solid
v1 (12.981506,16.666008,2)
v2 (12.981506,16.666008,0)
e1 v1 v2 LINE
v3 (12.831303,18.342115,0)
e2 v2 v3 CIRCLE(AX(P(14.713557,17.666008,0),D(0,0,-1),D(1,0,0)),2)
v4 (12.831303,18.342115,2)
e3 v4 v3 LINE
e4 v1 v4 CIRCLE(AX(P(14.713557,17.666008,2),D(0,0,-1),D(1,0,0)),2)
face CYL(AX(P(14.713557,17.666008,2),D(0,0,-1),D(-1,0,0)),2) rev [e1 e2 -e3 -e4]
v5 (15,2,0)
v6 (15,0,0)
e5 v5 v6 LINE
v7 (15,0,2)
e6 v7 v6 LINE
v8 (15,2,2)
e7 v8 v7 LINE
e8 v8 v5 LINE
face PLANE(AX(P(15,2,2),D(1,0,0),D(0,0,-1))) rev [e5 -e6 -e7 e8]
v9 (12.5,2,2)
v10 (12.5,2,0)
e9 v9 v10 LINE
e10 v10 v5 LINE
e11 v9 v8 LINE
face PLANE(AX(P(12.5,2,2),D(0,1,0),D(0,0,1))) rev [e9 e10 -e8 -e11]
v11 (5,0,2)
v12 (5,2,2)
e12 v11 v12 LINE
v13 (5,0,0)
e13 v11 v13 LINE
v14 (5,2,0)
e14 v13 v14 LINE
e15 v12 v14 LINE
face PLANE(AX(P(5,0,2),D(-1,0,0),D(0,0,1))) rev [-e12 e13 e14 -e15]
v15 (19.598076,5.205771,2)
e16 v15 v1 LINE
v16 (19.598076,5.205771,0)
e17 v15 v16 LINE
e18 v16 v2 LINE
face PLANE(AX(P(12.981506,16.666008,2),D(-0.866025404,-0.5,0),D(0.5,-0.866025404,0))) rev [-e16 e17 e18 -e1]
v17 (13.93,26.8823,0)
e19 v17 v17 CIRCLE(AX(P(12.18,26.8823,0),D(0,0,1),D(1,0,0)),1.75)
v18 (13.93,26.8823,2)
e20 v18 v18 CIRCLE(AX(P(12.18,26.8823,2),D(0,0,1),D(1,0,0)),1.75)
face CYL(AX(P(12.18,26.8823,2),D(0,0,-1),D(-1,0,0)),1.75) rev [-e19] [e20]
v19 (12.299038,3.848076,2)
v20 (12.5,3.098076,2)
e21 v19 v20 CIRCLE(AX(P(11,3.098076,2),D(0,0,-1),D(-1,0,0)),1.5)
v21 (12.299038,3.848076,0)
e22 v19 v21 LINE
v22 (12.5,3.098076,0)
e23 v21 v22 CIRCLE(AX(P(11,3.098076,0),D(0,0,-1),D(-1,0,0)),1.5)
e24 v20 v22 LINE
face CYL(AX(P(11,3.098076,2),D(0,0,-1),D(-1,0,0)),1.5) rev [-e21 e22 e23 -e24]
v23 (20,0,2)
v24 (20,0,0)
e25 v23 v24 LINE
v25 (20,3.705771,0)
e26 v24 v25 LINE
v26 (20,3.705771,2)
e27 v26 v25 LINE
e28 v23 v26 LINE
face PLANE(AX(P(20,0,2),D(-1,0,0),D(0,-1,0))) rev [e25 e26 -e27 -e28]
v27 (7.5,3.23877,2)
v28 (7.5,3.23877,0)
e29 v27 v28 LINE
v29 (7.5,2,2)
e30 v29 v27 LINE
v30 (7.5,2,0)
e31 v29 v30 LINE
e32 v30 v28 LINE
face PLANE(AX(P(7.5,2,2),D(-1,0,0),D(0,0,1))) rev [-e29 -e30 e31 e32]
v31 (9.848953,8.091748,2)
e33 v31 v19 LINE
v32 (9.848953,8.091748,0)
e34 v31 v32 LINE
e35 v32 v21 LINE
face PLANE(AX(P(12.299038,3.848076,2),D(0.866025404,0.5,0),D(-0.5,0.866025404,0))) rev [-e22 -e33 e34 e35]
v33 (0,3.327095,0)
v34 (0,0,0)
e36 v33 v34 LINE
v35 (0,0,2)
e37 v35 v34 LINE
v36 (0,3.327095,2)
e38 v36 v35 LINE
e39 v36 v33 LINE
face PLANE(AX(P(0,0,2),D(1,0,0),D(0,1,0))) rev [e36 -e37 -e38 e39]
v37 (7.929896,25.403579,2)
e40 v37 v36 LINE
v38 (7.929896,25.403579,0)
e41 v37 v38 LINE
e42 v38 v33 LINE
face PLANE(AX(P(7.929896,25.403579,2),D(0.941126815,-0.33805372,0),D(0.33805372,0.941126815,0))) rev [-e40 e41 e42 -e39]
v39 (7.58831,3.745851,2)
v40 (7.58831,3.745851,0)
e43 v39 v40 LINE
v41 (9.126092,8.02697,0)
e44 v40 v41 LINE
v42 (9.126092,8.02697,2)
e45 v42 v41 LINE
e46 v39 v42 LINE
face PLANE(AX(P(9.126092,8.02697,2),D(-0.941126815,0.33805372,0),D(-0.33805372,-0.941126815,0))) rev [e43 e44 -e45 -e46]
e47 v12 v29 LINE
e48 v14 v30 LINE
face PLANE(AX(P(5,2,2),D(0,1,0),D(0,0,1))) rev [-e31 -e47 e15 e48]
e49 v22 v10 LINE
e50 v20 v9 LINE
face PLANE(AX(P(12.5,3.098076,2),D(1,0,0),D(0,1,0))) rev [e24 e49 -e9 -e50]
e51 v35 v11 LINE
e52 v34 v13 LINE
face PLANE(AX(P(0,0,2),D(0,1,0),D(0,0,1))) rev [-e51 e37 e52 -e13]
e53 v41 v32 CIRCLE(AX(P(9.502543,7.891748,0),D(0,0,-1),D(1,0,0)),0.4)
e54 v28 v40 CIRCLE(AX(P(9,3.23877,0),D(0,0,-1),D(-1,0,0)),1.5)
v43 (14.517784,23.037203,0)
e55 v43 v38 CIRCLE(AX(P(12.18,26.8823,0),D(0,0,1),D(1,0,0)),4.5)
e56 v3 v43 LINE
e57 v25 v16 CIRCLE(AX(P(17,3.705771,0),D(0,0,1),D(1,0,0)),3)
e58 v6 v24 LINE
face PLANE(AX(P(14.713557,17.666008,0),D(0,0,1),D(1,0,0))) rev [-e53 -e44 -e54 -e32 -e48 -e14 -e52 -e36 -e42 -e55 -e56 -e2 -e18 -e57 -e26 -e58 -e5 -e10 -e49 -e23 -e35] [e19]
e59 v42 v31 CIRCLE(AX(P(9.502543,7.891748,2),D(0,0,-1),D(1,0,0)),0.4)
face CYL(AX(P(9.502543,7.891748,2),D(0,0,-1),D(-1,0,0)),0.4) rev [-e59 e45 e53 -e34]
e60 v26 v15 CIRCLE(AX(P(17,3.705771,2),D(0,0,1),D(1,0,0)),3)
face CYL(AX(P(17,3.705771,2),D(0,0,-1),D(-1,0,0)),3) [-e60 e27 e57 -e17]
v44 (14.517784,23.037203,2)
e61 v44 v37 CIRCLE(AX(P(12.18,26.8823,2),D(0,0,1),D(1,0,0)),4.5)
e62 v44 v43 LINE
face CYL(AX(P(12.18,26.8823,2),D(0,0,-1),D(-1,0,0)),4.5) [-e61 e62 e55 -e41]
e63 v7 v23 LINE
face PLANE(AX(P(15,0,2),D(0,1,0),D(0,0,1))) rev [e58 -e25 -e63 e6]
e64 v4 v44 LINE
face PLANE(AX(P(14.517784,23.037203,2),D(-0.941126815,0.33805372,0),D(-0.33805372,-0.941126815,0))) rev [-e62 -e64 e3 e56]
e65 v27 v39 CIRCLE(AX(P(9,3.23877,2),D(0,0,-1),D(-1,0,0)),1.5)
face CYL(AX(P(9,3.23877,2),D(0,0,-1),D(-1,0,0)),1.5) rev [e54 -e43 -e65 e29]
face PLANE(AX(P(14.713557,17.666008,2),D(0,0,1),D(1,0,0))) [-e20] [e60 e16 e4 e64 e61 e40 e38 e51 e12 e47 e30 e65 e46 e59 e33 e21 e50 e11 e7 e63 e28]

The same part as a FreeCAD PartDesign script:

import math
import FreeCAD as App
import Part
import Sketcher
from FreeCAD import Vector

doc = App.newDocument("Part")
params = doc.addObject("Spreadsheet::Sheet", "Params")
for row, (alias, value) in enumerate([
    ("sketch1_radius", "3 mm"),
    ("sketch1_radius2", "2 mm"),
    ("sketch1_diameter", "3.5 mm"),
    ("sketch1_radius3", "1.5 mm"),
    ("sketch1_radius4", "0.4 mm"),
    ("pad1_length", "2 mm"),
], start=1):
    params.set(f"A{row}", alias)
    params.set(f"B{row}", "=" + value)
    params.setAlias(f"B{row}", alias)

body = doc.addObject("PartDesign::Body", "Body")

# Sketch on XY plane
sketch1 = body.newObject("Sketcher::SketchObject", "Sketch")
sketch1.AttachmentSupport = (doc.getObject("XY_Plane"), [""])
sketch1.MapMode = "FlatFace"
sketch1.addGeometry([
    Part.LineSegment(Vector(0, 3.327095, 0), Vector(0, 0, 0)),  # 0
    Part.LineSegment(Vector(0, 0, 0), Vector(5, 0, 0)),  # 1
    Part.LineSegment(Vector(5, 0, 0), Vector(5, 2, 0)),  # 2
    Part.LineSegment(Vector(5, 2, 0), Vector(7.5, 2, 0)),  # 3
    Part.LineSegment(Vector(7.5, 2, 0), Vector(7.5, 3.23877, 0)),  # 4
    Part.ArcOfCircle(Part.Circle(Vector(9, 3.23877, 0), Vector(0, 0, 1), 1.5), math.radians(160.24166), math.radians(180)),  # 5
    Part.LineSegment(Vector(7.58831, 3.745851, 0), Vector(9.126092, 8.02697, 0)),  # 6
    Part.ArcOfCircle(Part.Circle(Vector(9.502543, 7.891748, 0), Vector(0, 0, 1), 0.4), math.radians(30), math.radians(160.24166)),  # 7
    Part.LineSegment(Vector(9.848953, 8.091748, 0), Vector(12.299038, 3.848076, 0)),  # 8
    Part.ArcOfCircle(Part.Circle(Vector(11, 3.098076, 0), Vector(0, 0, 1), 1.5), math.radians(0), math.radians(30)),  # 9
    Part.LineSegment(Vector(12.5, 3.098076, 0), Vector(12.5, 2, 0)),  # 10
    Part.LineSegment(Vector(12.5, 2, 0), Vector(15, 2, 0)),  # 11
    Part.LineSegment(Vector(15, 2, 0), Vector(15, 0, 0)),  # 12
    Part.LineSegment(Vector(15, 0, 0), Vector(20, 0, 0)),  # 13
    Part.LineSegment(Vector(20, 0, 0), Vector(20, 3.705771, 0)),  # 14
    Part.ArcOfCircle(Part.Circle(Vector(17, 3.705771, 0), Vector(0, 0, 1), 3), math.radians(0), math.radians(30)),  # 15
    Part.LineSegment(Vector(19.598076, 5.205771, 0), Vector(12.981506, 16.666008, 0)),  # 16
    Part.ArcOfCircle(Part.Circle(Vector(14.713557, 17.666008, 0), Vector(0, 0, 1), 2), math.radians(160.24166), math.radians(210)),  # 17
    Part.LineSegment(Vector(12.831303, 18.342115, 0), Vector(14.517784, 23.037203, 0)),  # 18
    Part.ArcOfCircle(Part.Circle(Vector(12.18, 26.8823, 0), Vector(0, 0, 1), 4.5), math.radians(-58.700782), math.radians(199.184101)),  # 19
    Part.LineSegment(Vector(7.929896, 25.403579, 0), Vector(0, 3.327095, 0)),  # 20
    Part.Circle(Vector(12.18, 26.8823, 0), Vector(0, 0, 1), 1.75),  # 21
], False)
sketch1.addConstraint([
    Sketcher.Constraint("Coincident", 0, 2, 1, 1),
    Sketcher.Constraint("Coincident", 1, 2, 2, 1),
    Sketcher.Constraint("Coincident", 2, 2, 3, 1),
    Sketcher.Constraint("Coincident", 3, 2, 4, 1),
    Sketcher.Constraint("Coincident", 4, 2, 5, 2),
    Sketcher.Constraint("Coincident", 5, 1, 6, 1),
    Sketcher.Constraint("Coincident", 6, 2, 7, 2),
    Sketcher.Constraint("Coincident", 7, 1, 8, 1),
    Sketcher.Constraint("Coincident", 8, 2, 9, 2),
    Sketcher.Constraint("Coincident", 9, 1, 10, 1),
    Sketcher.Constraint("Coincident", 10, 2, 11, 1),
    Sketcher.Constraint("Coincident", 11, 2, 12, 1),
    Sketcher.Constraint("Coincident", 12, 2, 13, 1),
    Sketcher.Constraint("Coincident", 13, 2, 14, 1),
    Sketcher.Constraint("Coincident", 14, 2, 15, 1),
    Sketcher.Constraint("Coincident", 15, 2, 16, 1),
    Sketcher.Constraint("Coincident", 16, 2, 17, 2),
    Sketcher.Constraint("Coincident", 17, 1, 18, 1),
    Sketcher.Constraint("Coincident", 18, 2, 19, 1),
    Sketcher.Constraint("Coincident", 19, 2, 20, 1),
    Sketcher.Constraint("Coincident", 20, 2, 0, 1),
    Sketcher.Constraint("Vertical", 0),
    Sketcher.Constraint("Horizontal", 1),
    Sketcher.Constraint("Vertical", 2),
    Sketcher.Constraint("Horizontal", 3),
    Sketcher.Constraint("Vertical", 4),
    Sketcher.Constraint("Vertical", 10),
    Sketcher.Constraint("Horizontal", 11),
    Sketcher.Constraint("Vertical", 12),
    Sketcher.Constraint("Horizontal", 13),
    Sketcher.Constraint("Vertical", 14),
    Sketcher.Constraint("Coincident", 0, 2, -1, 1),
    Sketcher.Constraint("Coincident", 21, 3, 19, 3),
    Sketcher.Constraint("PointOnObject", 12, 2, -1),
    Sketcher.Constraint("Radius", 15, 3.0),
    Sketcher.Constraint("Radius", 17, 2.0),
    Sketcher.Constraint("Diameter", 21, 3.5),
    Sketcher.Constraint("Radius", 5, 1.5),
    Sketcher.Constraint("Radius", 7, 0.4),
    Sketcher.Constraint("Radius", 9, 1.5),
    Sketcher.Constraint("Radius", 19, 4.5),
    Sketcher.Constraint("DistanceX", 1, 1, 1, 2, 5.0),
    Sketcher.Constraint("DistanceX", 13, 1, 13, 2, 5.0),
    Sketcher.Constraint("DistanceY", 2, 1, 2, 2, 2.0),
    Sketcher.Constraint("DistanceY", 12, 2, 12, 1, 2.0),
    Sketcher.Constraint("DistanceX", 3, 1, 3, 2, 2.5),
    Sketcher.Constraint("DistanceX", 11, 1, 11, 2, 2.5),
    Sketcher.Constraint("DistanceX", -1, 1, 9, 3, 11.0),
    Sketcher.Constraint("DistanceY", 16, 2, 17, 3, 1.0),
    Sketcher.Constraint("DistanceY", 7, 3, 7, 1, 0.2),
    Sketcher.Constraint("DistanceY", 14, 2, 15, 2, 1.5),
    Sketcher.Constraint("DistanceY", 15, 3, 15, 2, 1.5),
    Sketcher.Constraint("DistanceX", -1, 1, 19, 3, 12.18),
    Sketcher.Constraint("DistanceY", 9, 3, 8, 2, 0.75),
    Sketcher.Constraint("DistanceY", 9, 1, 8, 2, 0.75),
    Sketcher.Constraint("DistanceY", 5, 3, 15, 3, 0.467001),
    Sketcher.Constraint("DistanceY", 4, 1, 4, 2, 1.23877),
    Sketcher.Constraint("DistanceY", 14, 1, 14, 2, 3.705771),
    Sketcher.Constraint("DistanceY", -1, 1, 19, 3, 26.8823),
    Sketcher.Constraint("DistanceY", 5, 3, 6, 2, 4.7882),
    Sketcher.Constraint("Distance", 6, 4.548929),
    Sketcher.Constraint("Distance", 8, 4.90017),
    Sketcher.Constraint("Distance", 16, 13.233141),
    Sketcher.Constraint("DistanceY", 0, 2, 0, 1, 3.327095),
    Sketcher.Constraint("DistanceY", 10, 2, 10, 1, 1.098076),
    Sketcher.Constraint("DistanceY", -1, 1, 7, 3, 7.891748),
    Sketcher.Constraint("DistanceY", -1, 1, 19, 2, 25.403579),
    Sketcher.Constraint("DistanceY", 7, 3, 17, 3, 9.774259),
    Sketcher.Constraint("DistanceX", 7, 1, 17, 1, 2.98235),
    Sketcher.Constraint("DistanceX", 17, 1, 18, 2, 1.686481),
])
sketch1.setExpression("Constraints[34]", "Params.sketch1_radius")
sketch1.setExpression("Constraints[35]", "Params.sketch1_radius2")
sketch1.setExpression("Constraints[36]", "Params.sketch1_diameter")
sketch1.setExpression("Constraints[37]", "Params.sketch1_radius3")
sketch1.setExpression("Constraints[38]", "Params.sketch1_radius4")
pad1 = body.newObject("PartDesign::Pad", "Pad")
pad1.Profile = sketch1
pad1.setExpression("Length", "Params.pad1_length")

doc.recompute()
